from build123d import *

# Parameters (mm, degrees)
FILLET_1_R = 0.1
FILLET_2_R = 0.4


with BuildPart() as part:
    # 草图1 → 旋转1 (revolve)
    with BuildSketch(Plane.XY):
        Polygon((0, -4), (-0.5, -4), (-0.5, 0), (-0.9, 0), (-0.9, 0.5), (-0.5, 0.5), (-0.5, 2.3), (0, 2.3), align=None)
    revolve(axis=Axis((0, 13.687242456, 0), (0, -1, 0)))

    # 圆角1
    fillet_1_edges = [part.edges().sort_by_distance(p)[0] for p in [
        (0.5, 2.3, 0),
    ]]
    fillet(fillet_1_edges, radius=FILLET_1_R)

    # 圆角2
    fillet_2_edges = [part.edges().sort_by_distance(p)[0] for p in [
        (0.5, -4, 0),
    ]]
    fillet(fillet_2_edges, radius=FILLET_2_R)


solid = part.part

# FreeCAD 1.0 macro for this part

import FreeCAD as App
import Part
import Sketcher


def edges_at(feature, points):
    """Names of the edges that pass closest to the given points."""
    edges = feature.Shape.Edges
    near = lambda p: min(range(len(edges)), key=lambda i: edges[i].distToShape(Part.Vertex(*p))[0])
    return sorted({f"Edge{near(p) + 1}" for p in points})


def add_polygon(sketch, points):
    """Adds a closed chain of lines whose ends are joined by coincident constraints."""
    first, n = sketch.GeometryCount, len(points)
    for a, b in zip(points, points[1:] + points[:1]):
        sketch.addGeometry(Part.LineSegment(App.Vector(*a, 0), App.Vector(*b, 0)), False)
    for i in range(n):
        sketch.addConstraint(Sketcher.Constraint("Coincident", first + i, 2, first + (i + 1) % n, 1))

doc = App.newDocument("Part")
body = doc.addObject("PartDesign::Body", "Body")

# Sketch on XY plane
sketch1 = doc.addObject("Sketcher::SketchObject", "Sketch")
body.addObject(sketch1)
sketch1.AttachmentSupport = (doc.XY_Plane, [""])
sketch1.MapMode = "FlatFace"
add_polygon(sketch1, [(-0.5, -4), (0, -4), (0, 2.3), (-0.5, 2.3), (-0.5, 0.5), (-0.9, 0.5), (-0.9, 0), (-0.5, 0)])  # lines 0-7
sketch1.addConstraint([
    Sketcher.Constraint("Horizontal", 0),
    Sketcher.Constraint("Vertical", 1),
    Sketcher.Constraint("Horizontal", 2),
    Sketcher.Constraint("Vertical", 3),
    Sketcher.Constraint("Horizontal", 4),
    Sketcher.Constraint("Vertical", 5),
    Sketcher.Constraint("Horizontal", 6),
    Sketcher.Constraint("Vertical", 7),
    Sketcher.Constraint("PointOnObject", 0, 2, -2),
    Sketcher.Constraint("PointOnObject", 5, 2, -1),
    Sketcher.Constraint("Vertical", 3, 2, 6, 2),
    Sketcher.Constraint("Equal", 2, 5),
    Sketcher.Constraint("DistanceY", 7, 2, 7, 1, 4.0),
    Sketcher.Constraint("DistanceX", 0, 1, 0, 2, 0.5),
    Sketcher.Constraint("DistanceX", 4, 2, 4, 1, 0.4),
    Sketcher.Constraint("DistanceY", 1, 1, 1, 2, 6.3),
])
revolution = doc.addObject("PartDesign::Revolution", "Revolution")
body.addObject(revolution)
revolution.Profile = sketch1
revolution.ReferenceAxis = (sketch1, ["V_Axis"])
revolution.Angle = 360
doc.recompute()

fillet = doc.addObject("PartDesign::Fillet", "Fillet")
body.addObject(fillet)
fillet.Base = (revolution, edges_at(revolution, [(0.5, 2.3, 0)]))
fillet.Radius = 0.1
doc.recompute()

fillet2 = doc.addObject("PartDesign::Fillet", "Fillet001")
body.addObject(fillet2)
fillet2.Base = (fillet, edges_at(fillet, [(0.5, -4, 0)]))
fillet2.Radius = 0.4

doc.recompute()
